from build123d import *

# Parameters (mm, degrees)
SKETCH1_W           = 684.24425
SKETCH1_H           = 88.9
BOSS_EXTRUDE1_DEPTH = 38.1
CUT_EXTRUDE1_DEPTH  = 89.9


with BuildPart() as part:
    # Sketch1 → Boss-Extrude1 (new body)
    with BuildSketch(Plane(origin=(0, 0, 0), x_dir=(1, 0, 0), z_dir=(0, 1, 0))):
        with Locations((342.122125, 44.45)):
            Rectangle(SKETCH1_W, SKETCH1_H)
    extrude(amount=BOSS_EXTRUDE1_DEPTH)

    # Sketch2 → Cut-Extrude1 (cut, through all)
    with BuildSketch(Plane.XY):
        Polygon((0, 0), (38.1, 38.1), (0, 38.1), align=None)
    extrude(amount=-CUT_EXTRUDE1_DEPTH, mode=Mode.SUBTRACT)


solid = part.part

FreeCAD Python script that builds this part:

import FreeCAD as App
import Part
import Sketcher
from FreeCAD import Vector
Q = App.Units.Quantity

doc = App.newDocument("Part")
body = doc.addObject("PartDesign::Body", "Body")

# Sketch on XZ plane
sketch1 = doc.addObject("Sketcher::SketchObject", "Sketch")
body.addObject(sketch1)
sketch1.AttachmentSupport = (doc.XZ_Plane, [""])
sketch1.MapMode = "FlatFace"
sketch1.addGeometry([
    Part.LineSegment(Vector(0, -89, 0), Vector(0, 0, 0)),
    Part.LineSegment(Vector(0, 0, 0), Vector(684, 0, 0)),
    Part.LineSegment(Vector(684, 0, 0), Vector(684, -89, 0)),
    Part.LineSegment(Vector(684, -89, 0), Vector(0, -89, 0)),
], False)
sketch1.addConstraint([
    Sketcher.Constraint("Coincident", 0, 2, 1, 1),
    Sketcher.Constraint("Coincident", 1, 2, 2, 1),
    Sketcher.Constraint("Coincident", 2, 2, 3, 1),
    Sketcher.Constraint("Coincident", 3, 2, 0, 1),
    Sketcher.Constraint("Vertical", 0),
    Sketcher.Constraint("Horizontal", 1),
    Sketcher.Constraint("Vertical", 2),
    Sketcher.Constraint("Horizontal", 3),
    Sketcher.Constraint("Coincident", 0, 2, -1, 1),
    Sketcher.Constraint("DistanceY", 0, 1, 0, 2, Q("3.5 in")),
    Sketcher.Constraint("DistanceX", 1, 1, 1, 2, Q("684.24425 mm")),
])
pad1 = doc.addObject("PartDesign::Pad", "Pad")
body.addObject(pad1)
pad1.Profile = sketch1
pad1.Length = Q("1.5 in")
pad1.Reversed = True

# Sketch on XY plane
sketch2 = doc.addObject("Sketcher::SketchObject", "Sketch001")
body.addObject(sketch2)
sketch2.AttachmentSupport = (doc.XY_Plane, [""])
sketch2.MapMode = "FlatFace"
sketch2.addGeometry([
    Part.LineSegment(Vector(0, 0, 0), Vector(38, 38, 0)),
    Part.LineSegment(Vector(38, 38, 0), Vector(0, 38, 0)),
    Part.LineSegment(Vector(0, 38, 0), Vector(0, 0, 0)),
], False)
sketch2.addConstraint([
    Sketcher.Constraint("Coincident", 0, 2, 1, 1),
    Sketcher.Constraint("Coincident", 1, 2, 2, 1),
    Sketcher.Constraint("Coincident", 2, 2, 0, 1),
    Sketcher.Constraint("Horizontal", 1),
    Sketcher.Constraint("Vertical", 2),
    Sketcher.Constraint("Coincident", 2, 2, -1, 1),
    Sketcher.Constraint("Equal", 1, 2),
    Sketcher.Constraint("DistanceX", 1, 2, 1, 1, Q("1.5 in")),
])
pocket1 = doc.addObject("PartDesign::Pocket", "Pocket")
body.addObject(pocket1)
pocket1.Profile = sketch2
pocket1.Type = "ThroughAll"

doc.recompute()
